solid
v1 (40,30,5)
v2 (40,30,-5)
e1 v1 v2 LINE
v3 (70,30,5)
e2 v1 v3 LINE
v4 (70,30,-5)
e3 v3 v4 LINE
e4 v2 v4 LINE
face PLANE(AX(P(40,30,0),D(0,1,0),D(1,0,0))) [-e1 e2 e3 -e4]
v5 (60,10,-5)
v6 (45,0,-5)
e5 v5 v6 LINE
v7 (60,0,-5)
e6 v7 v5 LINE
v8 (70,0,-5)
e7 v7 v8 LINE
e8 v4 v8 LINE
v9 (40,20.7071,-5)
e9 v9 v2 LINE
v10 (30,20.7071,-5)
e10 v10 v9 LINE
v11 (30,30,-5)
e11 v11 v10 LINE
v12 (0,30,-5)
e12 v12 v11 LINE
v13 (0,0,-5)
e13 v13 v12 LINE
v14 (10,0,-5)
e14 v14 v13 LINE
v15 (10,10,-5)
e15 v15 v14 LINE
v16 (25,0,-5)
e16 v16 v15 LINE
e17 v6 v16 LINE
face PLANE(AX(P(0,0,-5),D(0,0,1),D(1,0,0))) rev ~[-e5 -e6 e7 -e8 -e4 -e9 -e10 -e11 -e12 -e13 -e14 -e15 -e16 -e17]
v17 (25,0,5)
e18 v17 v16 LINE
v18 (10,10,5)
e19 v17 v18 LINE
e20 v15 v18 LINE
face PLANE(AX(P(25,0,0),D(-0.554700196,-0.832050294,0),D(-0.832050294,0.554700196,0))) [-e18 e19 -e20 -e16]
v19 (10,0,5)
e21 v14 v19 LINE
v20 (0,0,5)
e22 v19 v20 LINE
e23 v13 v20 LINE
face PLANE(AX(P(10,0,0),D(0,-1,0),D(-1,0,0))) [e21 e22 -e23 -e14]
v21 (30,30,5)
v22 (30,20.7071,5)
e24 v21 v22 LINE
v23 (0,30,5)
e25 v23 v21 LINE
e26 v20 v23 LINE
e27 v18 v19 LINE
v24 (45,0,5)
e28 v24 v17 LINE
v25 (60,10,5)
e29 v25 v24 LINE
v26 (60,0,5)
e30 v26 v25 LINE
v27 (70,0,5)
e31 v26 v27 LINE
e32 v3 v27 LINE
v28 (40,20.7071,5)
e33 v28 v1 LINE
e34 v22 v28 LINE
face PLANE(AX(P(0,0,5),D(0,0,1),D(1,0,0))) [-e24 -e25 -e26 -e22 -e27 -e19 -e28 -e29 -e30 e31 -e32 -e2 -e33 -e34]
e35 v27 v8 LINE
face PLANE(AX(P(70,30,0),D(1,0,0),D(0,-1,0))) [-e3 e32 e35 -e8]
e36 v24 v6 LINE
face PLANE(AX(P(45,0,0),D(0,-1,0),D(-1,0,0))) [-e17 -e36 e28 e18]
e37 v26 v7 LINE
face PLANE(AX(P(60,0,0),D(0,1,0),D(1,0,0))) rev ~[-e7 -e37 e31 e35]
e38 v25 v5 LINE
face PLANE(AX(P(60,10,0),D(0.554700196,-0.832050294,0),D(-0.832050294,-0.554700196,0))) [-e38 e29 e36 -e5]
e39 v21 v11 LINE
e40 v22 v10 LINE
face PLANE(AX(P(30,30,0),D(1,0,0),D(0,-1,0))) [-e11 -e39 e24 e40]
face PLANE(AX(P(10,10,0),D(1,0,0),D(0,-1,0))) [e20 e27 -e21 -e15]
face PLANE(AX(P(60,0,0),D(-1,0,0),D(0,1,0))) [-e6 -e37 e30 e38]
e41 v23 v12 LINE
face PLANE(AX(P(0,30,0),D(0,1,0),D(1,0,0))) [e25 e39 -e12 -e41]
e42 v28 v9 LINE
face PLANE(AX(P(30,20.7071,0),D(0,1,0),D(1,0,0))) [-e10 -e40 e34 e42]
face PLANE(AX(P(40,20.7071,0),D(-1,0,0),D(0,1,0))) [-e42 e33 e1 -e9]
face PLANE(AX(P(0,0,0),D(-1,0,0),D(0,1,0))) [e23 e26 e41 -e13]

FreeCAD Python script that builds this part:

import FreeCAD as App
import Part
import Sketcher

doc = App.newDocument("Part")
params = doc.addObject("Spreadsheet::Sheet", "Params")
for row, (alias, value) in enumerate([
    ("sketch1_width", "10 mm"),
    ("sketch1_width2", "20 mm"),
    ("sketch1_width3", "30 mm"),
    ("pad1_length", "10 mm"),
], start=1):
    params.set(f"A{row}", alias)
    params.set(f"B{row}", "=" + value)
    params.setAlias(f"B{row}", alias)

body = doc.addObject("PartDesign::Body", "Body")

# Sketch on XY plane
sketch1 = body.newObject("Sketcher::SketchObject", "Sketch")
sketch1.AttachmentSupport = (doc.getObject("XY_Plane"), [""])
sketch1.MapMode = "FlatFace"
sketch1.addGeometry([
    Part.LineSegment(App.Vector(0, 30, 0), App.Vector(0, 0, 0)),  # 0
    Part.LineSegment(App.Vector(0, 0, 0), App.Vector(10, 0, 0)),  # 1
    Part.LineSegment(App.Vector(10, 0, 0), App.Vector(10, 10, 0)),  # 2
    Part.LineSegment(App.Vector(10, 10, 0), App.Vector(25, 0, 0)),  # 3
    Part.LineSegment(App.Vector(25, 0, 0), App.Vector(45, 0, 0)),  # 4
    Part.LineSegment(App.Vector(45, 0, 0), App.Vector(60, 10, 0)),  # 5
    Part.LineSegment(App.Vector(60, 10, 0), App.Vector(60, 0, 0)),  # 6
    Part.LineSegment(App.Vector(60, 0, 0), App.Vector(70, 0, 0)),  # 7
    Part.LineSegment(App.Vector(70, 0, 0), App.Vector(70, 30, 0)),  # 8
    Part.LineSegment(App.Vector(70, 30, 0), App.Vector(40, 30, 0)),  # 9
    Part.LineSegment(App.Vector(40, 30, 0), App.Vector(40, 20.7071, 0)),  # 10
    Part.LineSegment(App.Vector(40, 20.7071, 0), App.Vector(30, 20.7071, 0)),  # 11
    Part.LineSegment(App.Vector(30, 20.7071, 0), App.Vector(30, 30, 0)),  # 12
    Part.LineSegment(App.Vector(30, 30, 0), App.Vector(0, 30, 0)),  # 13
], False)
sketch1.addConstraint([
    Sketcher.Constraint("Coincident", 0, 2, 1, 1),
    Sketcher.Constraint("Coincident", 1, 2, 2, 1),
    Sketcher.Constraint("Coincident", 2, 2, 3, 1),
    Sketcher.Constraint("Coincident", 3, 2, 4, 1),
    Sketcher.Constraint("Coincident", 4, 2, 5, 1),
    Sketcher.Constraint("Coincident", 5, 2, 6, 1),
    Sketcher.Constraint("Coincident", 6, 2, 7, 1),
    Sketcher.Constraint("Coincident", 7, 2, 8, 1),
    Sketcher.Constraint("Coincident", 8, 2, 9, 1),
    Sketcher.Constraint("Coincident", 9, 2, 10, 1),
    Sketcher.Constraint("Coincident", 10, 2, 11, 1),
    Sketcher.Constraint("Coincident", 11, 2, 12, 1),
    Sketcher.Constraint("Coincident", 12, 2, 13, 1),
    Sketcher.Constraint("Coincident", 13, 2, 0, 1),
    Sketcher.Constraint("Vertical", 0),
    Sketcher.Constraint("Horizontal", 1),
    Sketcher.Constraint("Vertical", 2),
    Sketcher.Constraint("Horizontal", 4),
    Sketcher.Constraint("Vertical", 6),
    Sketcher.Constraint("Horizontal", 7),
    Sketcher.Constraint("Vertical", 8),
    Sketcher.Constraint("Horizontal", 9),
    Sketcher.Constraint("Vertical", 10),
    Sketcher.Constraint("Horizontal", 11),
    Sketcher.Constraint("Vertical", 12),
    Sketcher.Constraint("Horizontal", 13),
    Sketcher.Constraint("Coincident", 0, 2, -1, 1),
    Sketcher.Constraint("PointOnObject", 3, 2, -1),
    Sketcher.Constraint("PointOnObject", 6, 2, -1),
    Sketcher.Constraint("Horizontal", 2, 2, 5, 2),
    Sketcher.Constraint("Horizontal", 9, 2, 12, 2),
    Sketcher.Constraint("Equal", 1, 7),
    Sketcher.Constraint("Equal", 7, 11),
    Sketcher.Constraint("Equal", 9, 13),
    Sketcher.Constraint("Equal", 13, 0),
    Sketcher.Constraint("Equal", 11, 2),
    Sketcher.Constraint("Equal", 3, 5),
    Sketcher.Constraint("DistanceX", 1, 1, 1, 2, 10.0),
    Sketcher.Constraint("DistanceX", 4, 1, 4, 2, 20.0),
    Sketcher.Constraint("DistanceX", 9, 2, 9, 1, 30.0),
    Sketcher.Constraint("DistanceY", -1, 1, 10, 2, 20.707),
])
sketch1.setExpression("Constraints[37]", "Params.sketch1_width")
sketch1.setExpression("Constraints[38]", "Params.sketch1_width2")
sketch1.setExpression("Constraints[39]", "Params.sketch1_width3")
pad1 = body.newObject("PartDesign::Pad", "Pad")
pad1.Profile = sketch1
pad1.setExpression("Length", "Params.pad1_length")
pad1.Midplane = True

doc.recompute()
